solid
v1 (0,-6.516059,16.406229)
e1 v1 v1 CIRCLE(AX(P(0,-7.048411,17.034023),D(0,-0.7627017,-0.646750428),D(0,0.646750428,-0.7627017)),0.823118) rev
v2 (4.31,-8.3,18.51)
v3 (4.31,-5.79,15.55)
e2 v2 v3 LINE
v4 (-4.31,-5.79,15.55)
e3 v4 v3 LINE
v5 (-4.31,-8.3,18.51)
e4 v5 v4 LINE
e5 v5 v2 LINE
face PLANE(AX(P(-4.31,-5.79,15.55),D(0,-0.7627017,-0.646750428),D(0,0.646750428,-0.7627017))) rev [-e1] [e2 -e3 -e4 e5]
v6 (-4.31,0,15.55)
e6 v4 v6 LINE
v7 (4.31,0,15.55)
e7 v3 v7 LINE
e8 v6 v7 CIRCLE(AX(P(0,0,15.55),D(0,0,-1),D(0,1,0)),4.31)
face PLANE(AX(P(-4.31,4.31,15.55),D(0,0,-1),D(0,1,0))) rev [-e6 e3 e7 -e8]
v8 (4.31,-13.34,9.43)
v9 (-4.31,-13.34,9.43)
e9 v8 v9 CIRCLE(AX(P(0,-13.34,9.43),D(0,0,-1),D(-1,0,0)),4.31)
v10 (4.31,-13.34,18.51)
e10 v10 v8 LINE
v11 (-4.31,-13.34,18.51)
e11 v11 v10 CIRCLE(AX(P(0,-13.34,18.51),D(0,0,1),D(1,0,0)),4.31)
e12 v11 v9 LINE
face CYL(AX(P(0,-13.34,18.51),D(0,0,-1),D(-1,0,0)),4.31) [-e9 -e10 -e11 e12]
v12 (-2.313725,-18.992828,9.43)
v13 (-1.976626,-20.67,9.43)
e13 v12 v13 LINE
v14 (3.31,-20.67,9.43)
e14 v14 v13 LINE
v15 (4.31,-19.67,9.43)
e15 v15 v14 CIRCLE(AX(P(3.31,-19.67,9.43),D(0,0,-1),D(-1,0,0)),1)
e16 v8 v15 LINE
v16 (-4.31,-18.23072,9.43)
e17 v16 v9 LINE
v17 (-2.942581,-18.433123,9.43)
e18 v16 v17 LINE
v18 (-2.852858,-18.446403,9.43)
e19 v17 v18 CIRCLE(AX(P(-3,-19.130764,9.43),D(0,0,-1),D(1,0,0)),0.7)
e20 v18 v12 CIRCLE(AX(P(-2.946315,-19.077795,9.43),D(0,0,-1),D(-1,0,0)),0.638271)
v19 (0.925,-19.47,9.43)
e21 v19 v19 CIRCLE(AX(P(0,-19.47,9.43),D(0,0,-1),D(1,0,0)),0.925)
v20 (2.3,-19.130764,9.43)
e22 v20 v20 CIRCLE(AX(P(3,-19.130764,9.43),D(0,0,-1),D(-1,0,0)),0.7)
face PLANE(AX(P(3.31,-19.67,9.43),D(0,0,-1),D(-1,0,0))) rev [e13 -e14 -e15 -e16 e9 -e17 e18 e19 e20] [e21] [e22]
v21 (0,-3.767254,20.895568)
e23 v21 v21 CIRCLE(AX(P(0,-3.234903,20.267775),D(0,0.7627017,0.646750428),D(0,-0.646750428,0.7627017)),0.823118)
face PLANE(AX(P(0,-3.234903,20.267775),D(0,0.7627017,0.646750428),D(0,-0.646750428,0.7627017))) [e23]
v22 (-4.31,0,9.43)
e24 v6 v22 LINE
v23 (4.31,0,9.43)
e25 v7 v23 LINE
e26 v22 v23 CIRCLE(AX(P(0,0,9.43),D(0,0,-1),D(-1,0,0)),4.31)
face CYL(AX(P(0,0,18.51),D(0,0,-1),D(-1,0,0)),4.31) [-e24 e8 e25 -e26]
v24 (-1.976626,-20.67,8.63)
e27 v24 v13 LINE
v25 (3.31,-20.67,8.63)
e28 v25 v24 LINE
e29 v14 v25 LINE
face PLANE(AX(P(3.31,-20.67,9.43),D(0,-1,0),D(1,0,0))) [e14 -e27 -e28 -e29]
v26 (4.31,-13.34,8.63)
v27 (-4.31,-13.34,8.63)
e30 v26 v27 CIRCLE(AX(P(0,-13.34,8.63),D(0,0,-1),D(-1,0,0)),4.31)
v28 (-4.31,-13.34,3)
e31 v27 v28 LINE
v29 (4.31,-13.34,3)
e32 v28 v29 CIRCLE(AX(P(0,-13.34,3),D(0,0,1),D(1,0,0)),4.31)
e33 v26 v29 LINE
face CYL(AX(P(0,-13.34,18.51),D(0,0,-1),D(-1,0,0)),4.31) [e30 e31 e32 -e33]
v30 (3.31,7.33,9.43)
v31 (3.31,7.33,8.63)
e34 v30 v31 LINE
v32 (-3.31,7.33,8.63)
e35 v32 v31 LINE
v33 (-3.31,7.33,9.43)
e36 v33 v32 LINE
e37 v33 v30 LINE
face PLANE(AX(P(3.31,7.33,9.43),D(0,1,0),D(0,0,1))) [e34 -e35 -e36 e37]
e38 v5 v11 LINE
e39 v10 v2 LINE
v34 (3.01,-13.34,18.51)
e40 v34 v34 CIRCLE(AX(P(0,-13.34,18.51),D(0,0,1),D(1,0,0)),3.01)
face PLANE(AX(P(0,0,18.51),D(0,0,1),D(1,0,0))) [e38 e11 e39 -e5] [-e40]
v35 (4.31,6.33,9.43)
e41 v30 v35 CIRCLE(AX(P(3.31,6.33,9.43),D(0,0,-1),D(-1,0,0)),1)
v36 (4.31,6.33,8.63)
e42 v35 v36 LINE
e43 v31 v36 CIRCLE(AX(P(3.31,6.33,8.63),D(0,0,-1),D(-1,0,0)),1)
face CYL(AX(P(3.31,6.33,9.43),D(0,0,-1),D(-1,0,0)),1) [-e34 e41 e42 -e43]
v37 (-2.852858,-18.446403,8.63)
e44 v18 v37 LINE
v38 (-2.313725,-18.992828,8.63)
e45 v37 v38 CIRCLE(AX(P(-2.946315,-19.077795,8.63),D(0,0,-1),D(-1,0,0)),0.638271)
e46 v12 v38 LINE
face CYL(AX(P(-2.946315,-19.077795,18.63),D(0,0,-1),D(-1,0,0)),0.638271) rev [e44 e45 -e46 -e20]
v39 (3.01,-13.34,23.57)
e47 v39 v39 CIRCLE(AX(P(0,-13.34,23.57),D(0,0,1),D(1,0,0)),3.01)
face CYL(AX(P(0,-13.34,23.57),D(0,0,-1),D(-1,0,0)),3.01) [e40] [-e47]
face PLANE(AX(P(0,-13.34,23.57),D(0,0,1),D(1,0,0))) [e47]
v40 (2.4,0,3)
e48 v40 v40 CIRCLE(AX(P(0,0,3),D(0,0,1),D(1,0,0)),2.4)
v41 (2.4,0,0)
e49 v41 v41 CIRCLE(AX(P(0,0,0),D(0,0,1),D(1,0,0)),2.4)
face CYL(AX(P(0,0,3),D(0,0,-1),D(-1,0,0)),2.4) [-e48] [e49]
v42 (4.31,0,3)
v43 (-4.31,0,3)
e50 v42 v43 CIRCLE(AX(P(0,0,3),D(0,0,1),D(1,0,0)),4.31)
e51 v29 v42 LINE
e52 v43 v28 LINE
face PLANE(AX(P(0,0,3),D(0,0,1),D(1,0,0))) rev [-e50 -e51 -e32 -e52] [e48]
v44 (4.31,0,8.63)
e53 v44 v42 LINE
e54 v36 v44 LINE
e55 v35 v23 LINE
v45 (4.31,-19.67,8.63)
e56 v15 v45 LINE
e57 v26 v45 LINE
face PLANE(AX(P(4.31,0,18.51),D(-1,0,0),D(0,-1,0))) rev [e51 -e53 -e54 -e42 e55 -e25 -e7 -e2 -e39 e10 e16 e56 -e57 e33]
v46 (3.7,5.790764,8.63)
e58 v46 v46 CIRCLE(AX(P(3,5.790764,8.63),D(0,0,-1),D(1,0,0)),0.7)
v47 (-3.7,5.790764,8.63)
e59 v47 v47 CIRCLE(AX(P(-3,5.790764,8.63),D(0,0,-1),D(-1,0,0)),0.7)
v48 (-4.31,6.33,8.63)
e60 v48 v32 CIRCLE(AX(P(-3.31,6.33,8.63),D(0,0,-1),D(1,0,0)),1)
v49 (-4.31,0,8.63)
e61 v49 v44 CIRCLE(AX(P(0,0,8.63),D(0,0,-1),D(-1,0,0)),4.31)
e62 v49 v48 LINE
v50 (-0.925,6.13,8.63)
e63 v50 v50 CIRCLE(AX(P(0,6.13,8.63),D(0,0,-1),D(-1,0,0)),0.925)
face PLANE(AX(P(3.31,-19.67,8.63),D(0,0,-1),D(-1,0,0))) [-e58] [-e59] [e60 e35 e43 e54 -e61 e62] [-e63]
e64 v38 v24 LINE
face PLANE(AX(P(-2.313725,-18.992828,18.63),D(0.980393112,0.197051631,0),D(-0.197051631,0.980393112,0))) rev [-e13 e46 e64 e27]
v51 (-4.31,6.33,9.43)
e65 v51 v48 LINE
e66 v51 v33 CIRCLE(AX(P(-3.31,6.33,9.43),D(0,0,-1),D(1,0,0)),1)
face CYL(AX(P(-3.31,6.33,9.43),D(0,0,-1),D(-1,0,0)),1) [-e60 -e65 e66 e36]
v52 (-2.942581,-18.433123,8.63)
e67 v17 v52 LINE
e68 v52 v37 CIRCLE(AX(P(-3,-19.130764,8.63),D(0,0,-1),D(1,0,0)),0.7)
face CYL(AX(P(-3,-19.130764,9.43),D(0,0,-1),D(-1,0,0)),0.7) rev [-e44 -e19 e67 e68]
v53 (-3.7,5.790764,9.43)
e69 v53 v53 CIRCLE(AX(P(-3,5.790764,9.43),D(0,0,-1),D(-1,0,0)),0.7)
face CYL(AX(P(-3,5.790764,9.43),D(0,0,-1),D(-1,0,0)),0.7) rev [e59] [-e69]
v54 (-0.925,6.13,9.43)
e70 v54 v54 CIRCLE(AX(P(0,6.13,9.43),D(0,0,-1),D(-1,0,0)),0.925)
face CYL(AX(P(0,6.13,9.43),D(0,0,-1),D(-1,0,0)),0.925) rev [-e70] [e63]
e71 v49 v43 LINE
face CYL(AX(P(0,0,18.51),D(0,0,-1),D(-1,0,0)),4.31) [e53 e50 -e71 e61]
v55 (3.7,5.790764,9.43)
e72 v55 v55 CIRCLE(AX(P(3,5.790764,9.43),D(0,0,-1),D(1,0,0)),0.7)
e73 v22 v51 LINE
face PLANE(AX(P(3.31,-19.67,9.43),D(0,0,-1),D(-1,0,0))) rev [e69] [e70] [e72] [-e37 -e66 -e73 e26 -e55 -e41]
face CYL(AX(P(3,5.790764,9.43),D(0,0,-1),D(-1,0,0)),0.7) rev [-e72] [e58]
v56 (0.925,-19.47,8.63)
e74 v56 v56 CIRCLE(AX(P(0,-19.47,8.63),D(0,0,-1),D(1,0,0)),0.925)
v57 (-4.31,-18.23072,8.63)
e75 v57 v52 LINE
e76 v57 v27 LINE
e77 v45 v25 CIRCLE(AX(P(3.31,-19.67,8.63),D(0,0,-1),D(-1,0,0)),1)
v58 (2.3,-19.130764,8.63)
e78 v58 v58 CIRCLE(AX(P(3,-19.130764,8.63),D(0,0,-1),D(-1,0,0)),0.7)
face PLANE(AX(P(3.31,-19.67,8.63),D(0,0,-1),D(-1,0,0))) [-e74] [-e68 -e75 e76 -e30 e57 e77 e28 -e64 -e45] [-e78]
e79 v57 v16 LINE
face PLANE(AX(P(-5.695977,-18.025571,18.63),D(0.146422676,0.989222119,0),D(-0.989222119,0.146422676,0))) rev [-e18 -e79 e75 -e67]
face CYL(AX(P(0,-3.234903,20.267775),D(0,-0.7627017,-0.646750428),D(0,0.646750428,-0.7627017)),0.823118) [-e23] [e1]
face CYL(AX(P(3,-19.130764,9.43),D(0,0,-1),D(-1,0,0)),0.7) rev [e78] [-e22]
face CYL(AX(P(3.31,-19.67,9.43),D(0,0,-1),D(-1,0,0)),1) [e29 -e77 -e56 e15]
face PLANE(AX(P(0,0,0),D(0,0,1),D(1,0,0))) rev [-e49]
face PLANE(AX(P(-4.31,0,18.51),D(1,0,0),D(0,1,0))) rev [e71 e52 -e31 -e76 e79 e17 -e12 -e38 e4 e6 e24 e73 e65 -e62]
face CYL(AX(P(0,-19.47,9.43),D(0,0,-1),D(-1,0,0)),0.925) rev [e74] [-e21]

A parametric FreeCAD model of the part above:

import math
import FreeCAD as App
import Part
import Sketcher
from FreeCAD import Vector
Q = App.Units.Quantity

doc = App.newDocument("Part")
params = doc.addObject("Spreadsheet::Sheet", "Params")
for row, (alias, value) in enumerate([
    ("sketch1_diameter", "4.8 mm"),
    ("pad1_length", "3 mm"),
    ("sketch2_radius", "4.31 mm"),
    ("sketch2_height", "13.34 mm"),
    ("pad2_length", "15.51 mm"),
    ("sketch3_width", "10.1 mm"),
    ("sketch3_width2", "12.61 mm"),
    ("sketch3_height", "2.96 mm"),
    ("sketch4_diameter", "6.02 mm"),
    ("pad3_length", "5.06 mm"),
    ("sketch5_radius", "1 mm"),
    ("sketch5_diameter", "1.4 mm"),
    ("sketch5_diameter2", "1.85 mm"),
    ("sketch5_height", "26 mm"),
    ("sketch5_width", "6.62 mm"),
    ("pad4_length", "0.8 mm"),
    ("pad5_length", "5 mm"),
    ("pocket2_length", "10 mm"),
], start=1):
    params.set(f"A{row}", alias)
    params.set(f"B{row}", "=" + value)
    params.setAlias(f"B{row}", alias)

body = doc.addObject("PartDesign::Body", "Body")

# Sketch on XY plane
sketch1 = body.newObject("Sketcher::SketchObject", "Sketch")
sketch1.AttachmentSupport = (doc.getObject("XY_Plane"), [""])
sketch1.MapMode = "FlatFace"
sketch1.addGeometry(Part.Circle(Vector(0, 0, 0), Vector(0, 0, 1), 2.4), False)
sketch1.addConstraint([
    Sketcher.Constraint("Coincident", 0, 3, -1, 1),
    Sketcher.Constraint("Diameter", 0, Q("4.8 mm")),
])
sketch1.setExpression("Constraints[1]", "Params.sketch1_diameter")
pad1 = body.newObject("PartDesign::Pad", "Pad")
pad1.Profile = sketch1
pad1.setExpression("Length", "Params.pad1_length")

# Sketch on XY plane
sketch2 = body.newObject("Sketcher::SketchObject", "Sketch001")
sketch2.AttachmentSupport = (doc.getObject("XY_Plane"), [""])
sketch2.MapMode = "FlatFace"
sketch2.AttachmentOffset = App.Placement(Vector(0, 0, 3), App.Rotation())
sketch2.addGeometry([
    Part.LineSegment(Vector(4.3, -13.3, 0), Vector(4.3, 0, 0)),
    Part.ArcOfCircle(Part.Circle(Vector(0, 0, 0), Vector(0, 0, 1), 4.3), math.radians(0), math.radians(180)),
    Part.LineSegment(Vector(-4.3, 0, 0), Vector(-4.3, -13.3, 0)),
    Part.ArcOfCircle(Part.Circle(Vector(0, -13.3, 0), Vector(0, 0, 1), 4.3), math.radians(180), math.radians(360)),
], False)
sketch2.addConstraint([
    Sketcher.Constraint("Tangent", 0, 2, 1, 1),
    Sketcher.Constraint("Tangent", 1, 2, 2, 1),
    Sketcher.Constraint("Tangent", 2, 2, 3, 1),
    Sketcher.Constraint("Tangent", 3, 2, 0, 1),
    Sketcher.Constraint("Vertical", 0),
    Sketcher.Constraint("Vertical", 2),
    Sketcher.Constraint("Coincident", 1, 3, -1, 1),
    Sketcher.Constraint("Radius", 1, Q("4.31 mm")),
    Sketcher.Constraint("DistanceY", 0, 1, 0, 2, Q("13.34 mm")),
])
sketch2.setExpression("Constraints[7]", "Params.sketch2_radius")
sketch2.setExpression("Constraints[8]", "Params.sketch2_height")
pad2 = body.newObject("PartDesign::Pad", "Pad001")
pad2.Profile = sketch2
pad2.setExpression("Length", "Params.pad2_length")

# Sketch on YZ plane
sketch3 = body.newObject("Sketcher::SketchObject", "Sketch002")
sketch3.AttachmentSupport = (doc.getObject("YZ_Plane"), [""])
sketch3.MapMode = "FlatFace"
sketch3.addGeometry([
    Part.LineSegment(Vector(4.3, 15.6, 0), Vector(4.3, 18.5, 0)),
    Part.LineSegment(Vector(4.3, 18.5, 0), Vector(-8.3, 18.5, 0)),
    Part.LineSegment(Vector(-8.3, 18.5, 0), Vector(-5.8, 15.6, 0)),
    Part.LineSegment(Vector(-5.8, 15.6, 0), Vector(4.3, 15.6, 0)),
], False)
sketch3.addConstraint([
    Sketcher.Constraint("Coincident", 0, 2, 1, 1),
    Sketcher.Constraint("Coincident", 1, 2, 2, 1),
    Sketcher.Constraint("Coincident", 2, 2, 3, 1),
    Sketcher.Constraint("Coincident", 3, 2, 0, 1),
    Sketcher.Constraint("Vertical", 0),
    Sketcher.Constraint("Horizontal", 1),
    Sketcher.Constraint("Horizontal", 3),
    Sketcher.Constraint("DistanceX", 3, 1, 3, 2, Q("10.1 mm")),
    Sketcher.Constraint("DistanceX", 1, 2, 1, 1, Q("12.61 mm")),
    Sketcher.Constraint("DistanceY", 0, 1, 0, 2, Q("2.96 mm")),
    Sketcher.Constraint("DistanceX", 1, 2, -1, 1, Q("8.3 mm")),
    Sketcher.Constraint("DistanceY", -1, 1, 0, 2, Q("18.51 mm")),
])
sketch3.setExpression("Constraints[7]", "Params.sketch3_width")
sketch3.setExpression("Constraints[8]", "Params.sketch3_width2")
sketch3.setExpression("Constraints[9]", "Params.sketch3_height")
pocket1 = body.newObject("PartDesign::Pocket", "Pocket")
pocket1.Profile = sketch3
pocket1.Type = "ThroughAll"
pocket1.Midplane = True

# Sketch on XY plane
sketch4 = body.newObject("Sketcher::SketchObject", "Sketch003")
sketch4.AttachmentSupport = (doc.getObject("XY_Plane"), [""])
sketch4.MapMode = "FlatFace"
sketch4.AttachmentOffset = App.Placement(Vector(0, 0, 18.51), App.Rotation())
sketch4.addGeometry(Part.Circle(Vector(0, -13.3, 0), Vector(0, 0, 1), 3), False)
sketch4.addConstraint([
    Sketcher.Constraint("PointOnObject", 0, 3, -2),
    Sketcher.Constraint("Diameter", 0, Q("6.02 mm")),
    Sketcher.Constraint("DistanceY", 0, 3, -1, 1, Q("13.34 mm")),
])
sketch4.setExpression("Constraints[1]", "Params.sketch4_diameter")
pad3 = body.newObject("PartDesign::Pad", "Pad002")
pad3.Profile = sketch4
pad3.setExpression("Length", "Params.pad3_length")

# Sketch on XY plane
sketch5 = body.newObject("Sketcher::SketchObject", "Sketch004")
sketch5.AttachmentSupport = (doc.getObject("XY_Plane"), [""])
sketch5.MapMode = "FlatFace"
sketch5.AttachmentOffset = App.Placement(Vector(0, 0, 8.63), App.Rotation())
sketch5.addGeometry([
    Part.LineSegment(Vector(-3.3, 7.3, 0), Vector(3.3, 7.3, 0)),  # 0
    Part.ArcOfCircle(Part.Circle(Vector(3.3, 6.3, 0), Vector(0, 0, 1), 1), math.radians(0), math.radians(90)),  # 1
    Part.LineSegment(Vector(4.3, 6.3, 0), Vector(4.3, -19.7, 0)),  # 2
    Part.ArcOfCircle(Part.Circle(Vector(3.3, -19.7, 0), Vector(0, 0, 1), 1), math.radians(-90), math.radians(0)),  # 3
    Part.LineSegment(Vector(3.3, -20.7, 0), Vector(-3.3, -20.7, 0)),  # 4
    Part.ArcOfCircle(Part.Circle(Vector(-3.3, -19.7, 0), Vector(0, 0, 1), 1), math.radians(-180), math.radians(-90)),  # 5
    Part.LineSegment(Vector(-4.3, -19.7, 0), Vector(-4.3, 6.3, 0)),  # 6
    Part.ArcOfCircle(Part.Circle(Vector(-3.3, 6.3, 0), Vector(0, 0, 1), 1), math.radians(90), math.radians(180)),  # 7
    Part.Circle(Vector(-3, -19.1, 0), Vector(0, 0, 1), 0.7),  # 8
    Part.Circle(Vector(0, -19.5, 0), Vector(0, 0, 1), 0.9),  # 9
    Part.Circle(Vector(3, -19.1, 0), Vector(0, 0, 1), 0.7),  # 10
    Part.Circle(Vector(-3, 5.8, 0), Vector(0, 0, 1), 0.7),  # 11
    Part.Circle(Vector(0, 6.1, 0), Vector(0, 0, 1), 0.9),  # 12
    Part.Circle(Vector(3, 5.8, 0), Vector(0, 0, 1), 0.7),  # 13
], False)
sketch5.addConstraint([
    Sketcher.Constraint("Tangent", 0, 2, 1, 2),
    Sketcher.Constraint("Tangent", 1, 1, 2, 1),
    Sketcher.Constraint("Tangent", 2, 2, 3, 2),
    Sketcher.Constraint("Tangent", 3, 1, 4, 1),
    Sketcher.Constraint("Tangent", 4, 2, 5, 2),
    Sketcher.Constraint("Tangent", 5, 1, 6, 1),
    Sketcher.Constraint("Tangent", 6, 2, 7, 2),
    Sketcher.Constraint("Tangent", 7, 1, 0, 1),
    Sketcher.Constraint("Horizontal", 0),
    Sketcher.Constraint("Vertical", 2),
    Sketcher.Constraint("Horizontal", 4),
    Sketcher.Constraint("Vertical", 6),
    Sketcher.Constraint("Equal", 1, 3),
    Sketcher.Constraint("Equal", 3, 5),
    Sketcher.Constraint("Equal", 5, 7),
    Sketcher.Constraint("Equal", 8, 10),
    Sketcher.Constraint("Equal", 10, 11),
    Sketcher.Constraint("Equal", 9, 12),
    Sketcher.Constraint("Equal", 11, 13),
    Sketcher.Constraint("Symmetric", 8, 3, 10, 3, -2),
    Sketcher.Constraint("Symmetric", 11, 3, 13, 3, -2),
    Sketcher.Constraint("PointOnObject", 9, 3, -2),
    Sketcher.Constraint("PointOnObject", 12, 3, -2),
    Sketcher.Constraint("Vertical", 8, 3, 11, 3),
    Sketcher.Constraint("Radius", 1, Q("1 mm")),
    Sketcher.Constraint("Diameter", 8, Q("1.4 mm")),
    Sketcher.Constraint("Diameter", 9, Q("1.85 mm")),
    Sketcher.Constraint("DistanceY", 2, 2, 2, 1, Q("26 mm")),
    Sketcher.Constraint("DistanceX", 8, 3, -1, 1, Q("3 mm")),
    Sketcher.Constraint("DistanceX", 0, 1, 0, 2, Q("6.62 mm")),
    Sketcher.Constraint("DistanceY", 3, 3, 9, 3, Q("0.2 mm")),
    Sketcher.Constraint("DistanceY", 12, 3, 1, 3, Q("0.2 mm")),
    Sketcher.Constraint("DistanceX", -1, 1, 1, 3, Q("3.31 mm")),
    Sketcher.Constraint("DistanceY", -1, 1, 1, 3, Q("6.33 mm")),
    Sketcher.Constraint("DistanceY", 8, 3, -1, 1, Q("19.130764 mm")),
    Sketcher.Constraint("DistanceY", -1, 1, 11, 3, Q("5.790764 mm")),
])
sketch5.setExpression("Constraints[24]", "Params.sketch5_radius")
sketch5.setExpression("Constraints[25]", "Params.sketch5_diameter")
sketch5.setExpression("Constraints[26]", "Params.sketch5_diameter2")
sketch5.setExpression("Constraints[27]", "Params.sketch5_height")
sketch5.setExpression("Constraints[29]", "Params.sketch5_width")
pad4 = body.newObject("PartDesign::Pad", "Pad003")
pad4.Profile = sketch5
pad4.setExpression("Length", "Params.pad4_length")

# Sketch on an angled plane
sketch6 = body.newObject("Sketcher::SketchObject", "Sketch005")
sketch6.Placement = App.Placement(Vector(0, 4.302344, 3.648272), App.Rotation(Vector(1, 0, 0), Vector(0, 0.646750428, -0.7627017), Vector(0, 0.7627017, 0.646750428), "ZXY"))
sketch6.addGeometry(Part.Circle(Vector(0, -17.6, 0), Vector(0, 0, 1), 0.8), False)
sketch6.addConstraint([
    Sketcher.Constraint("PointOnObject", 0, 3, -2),
    Sketcher.Constraint("Diameter", 0, Q("1.646235 mm")),
    Sketcher.Constraint("DistanceY", 0, 3, -1, 1, Q("17.550441 mm")),
])
pad5 = body.newObject("PartDesign::Pad", "Pad004")
pad5.Profile = sketch6
pad5.setExpression("Length", "Params.pad5_length")

# Sketch on XY plane
sketch7 = body.newObject("Sketcher::SketchObject", "Sketch006")
sketch7.AttachmentSupport = (doc.getObject("XY_Plane"), [""])
sketch7.MapMode = "FlatFace"
sketch7.AttachmentOffset = App.Placement(Vector(0, 0, 8.63), App.Rotation())
sketch7.addGeometry([
    Part.LineSegment(Vector(-2.3, -19, 0), Vector(-1.9, -21, 0)),  # 0
    Part.LineSegment(Vector(-1.9, -21, 0), Vector(-6, -21, 0)),  # 1
    Part.LineSegment(Vector(-6, -21, 0), Vector(-5.7, -18, 0)),  # 2
    Part.LineSegment(Vector(-5.7, -18, 0), Vector(-2.9, -18.4, 0)),  # 3
    Part.ArcOfCircle(Part.Circle(Vector(-2.9, -19.1, 0), Vector(0, 0, 1), 0.6), math.radians(8), math.radians(82)),  # 4
], False)
sketch7.addConstraint([
    Sketcher.Constraint("Coincident", 0, 2, 1, 1),
    Sketcher.Constraint("Coincident", 1, 2, 2, 1),
    Sketcher.Constraint("Coincident", 2, 2, 3, 1),
    Sketcher.Constraint("Tangent", 3, 2, 4, 2),
    Sketcher.Constraint("Coincident", 4, 1, 0, 1),
    Sketcher.Constraint("Horizontal", 1),
    Sketcher.Constraint("Radius", 4, Q("0.638271 mm")),
    Sketcher.Constraint("DistanceX", 1, 2, 1, 1, Q("4.061271 mm")),
    Sketcher.Constraint("DistanceX", 1, 2, 4, 1, Q("3.649901 mm")),
    Sketcher.Constraint("DistanceY", 2, 2, -1, 1, Q("18.025571 mm")),
    Sketcher.Constraint("DistanceX", 4, 3, 0, 2, Q("1.04396 mm")),
    Sketcher.Constraint("DistanceX", 1, 2, 2, 2, Q("0.267648 mm")),
    Sketcher.Constraint("DistanceY", 1, 2, 2, 2, Q("3.013952 mm")),
    Sketcher.Constraint("DistanceY", 4, 3, 3, 2, Q("0.631392 mm")),
    Sketcher.Constraint("DistanceX", 4, 3, -1, 1, Q("2.946315 mm")),
])
pocket2 = body.newObject("PartDesign::Pocket", "Pocket001")
pocket2.Profile = sketch7
pocket2.setExpression("Length", "Params.pocket2_length")
pocket2.Reversed = True

doc.recompute()
